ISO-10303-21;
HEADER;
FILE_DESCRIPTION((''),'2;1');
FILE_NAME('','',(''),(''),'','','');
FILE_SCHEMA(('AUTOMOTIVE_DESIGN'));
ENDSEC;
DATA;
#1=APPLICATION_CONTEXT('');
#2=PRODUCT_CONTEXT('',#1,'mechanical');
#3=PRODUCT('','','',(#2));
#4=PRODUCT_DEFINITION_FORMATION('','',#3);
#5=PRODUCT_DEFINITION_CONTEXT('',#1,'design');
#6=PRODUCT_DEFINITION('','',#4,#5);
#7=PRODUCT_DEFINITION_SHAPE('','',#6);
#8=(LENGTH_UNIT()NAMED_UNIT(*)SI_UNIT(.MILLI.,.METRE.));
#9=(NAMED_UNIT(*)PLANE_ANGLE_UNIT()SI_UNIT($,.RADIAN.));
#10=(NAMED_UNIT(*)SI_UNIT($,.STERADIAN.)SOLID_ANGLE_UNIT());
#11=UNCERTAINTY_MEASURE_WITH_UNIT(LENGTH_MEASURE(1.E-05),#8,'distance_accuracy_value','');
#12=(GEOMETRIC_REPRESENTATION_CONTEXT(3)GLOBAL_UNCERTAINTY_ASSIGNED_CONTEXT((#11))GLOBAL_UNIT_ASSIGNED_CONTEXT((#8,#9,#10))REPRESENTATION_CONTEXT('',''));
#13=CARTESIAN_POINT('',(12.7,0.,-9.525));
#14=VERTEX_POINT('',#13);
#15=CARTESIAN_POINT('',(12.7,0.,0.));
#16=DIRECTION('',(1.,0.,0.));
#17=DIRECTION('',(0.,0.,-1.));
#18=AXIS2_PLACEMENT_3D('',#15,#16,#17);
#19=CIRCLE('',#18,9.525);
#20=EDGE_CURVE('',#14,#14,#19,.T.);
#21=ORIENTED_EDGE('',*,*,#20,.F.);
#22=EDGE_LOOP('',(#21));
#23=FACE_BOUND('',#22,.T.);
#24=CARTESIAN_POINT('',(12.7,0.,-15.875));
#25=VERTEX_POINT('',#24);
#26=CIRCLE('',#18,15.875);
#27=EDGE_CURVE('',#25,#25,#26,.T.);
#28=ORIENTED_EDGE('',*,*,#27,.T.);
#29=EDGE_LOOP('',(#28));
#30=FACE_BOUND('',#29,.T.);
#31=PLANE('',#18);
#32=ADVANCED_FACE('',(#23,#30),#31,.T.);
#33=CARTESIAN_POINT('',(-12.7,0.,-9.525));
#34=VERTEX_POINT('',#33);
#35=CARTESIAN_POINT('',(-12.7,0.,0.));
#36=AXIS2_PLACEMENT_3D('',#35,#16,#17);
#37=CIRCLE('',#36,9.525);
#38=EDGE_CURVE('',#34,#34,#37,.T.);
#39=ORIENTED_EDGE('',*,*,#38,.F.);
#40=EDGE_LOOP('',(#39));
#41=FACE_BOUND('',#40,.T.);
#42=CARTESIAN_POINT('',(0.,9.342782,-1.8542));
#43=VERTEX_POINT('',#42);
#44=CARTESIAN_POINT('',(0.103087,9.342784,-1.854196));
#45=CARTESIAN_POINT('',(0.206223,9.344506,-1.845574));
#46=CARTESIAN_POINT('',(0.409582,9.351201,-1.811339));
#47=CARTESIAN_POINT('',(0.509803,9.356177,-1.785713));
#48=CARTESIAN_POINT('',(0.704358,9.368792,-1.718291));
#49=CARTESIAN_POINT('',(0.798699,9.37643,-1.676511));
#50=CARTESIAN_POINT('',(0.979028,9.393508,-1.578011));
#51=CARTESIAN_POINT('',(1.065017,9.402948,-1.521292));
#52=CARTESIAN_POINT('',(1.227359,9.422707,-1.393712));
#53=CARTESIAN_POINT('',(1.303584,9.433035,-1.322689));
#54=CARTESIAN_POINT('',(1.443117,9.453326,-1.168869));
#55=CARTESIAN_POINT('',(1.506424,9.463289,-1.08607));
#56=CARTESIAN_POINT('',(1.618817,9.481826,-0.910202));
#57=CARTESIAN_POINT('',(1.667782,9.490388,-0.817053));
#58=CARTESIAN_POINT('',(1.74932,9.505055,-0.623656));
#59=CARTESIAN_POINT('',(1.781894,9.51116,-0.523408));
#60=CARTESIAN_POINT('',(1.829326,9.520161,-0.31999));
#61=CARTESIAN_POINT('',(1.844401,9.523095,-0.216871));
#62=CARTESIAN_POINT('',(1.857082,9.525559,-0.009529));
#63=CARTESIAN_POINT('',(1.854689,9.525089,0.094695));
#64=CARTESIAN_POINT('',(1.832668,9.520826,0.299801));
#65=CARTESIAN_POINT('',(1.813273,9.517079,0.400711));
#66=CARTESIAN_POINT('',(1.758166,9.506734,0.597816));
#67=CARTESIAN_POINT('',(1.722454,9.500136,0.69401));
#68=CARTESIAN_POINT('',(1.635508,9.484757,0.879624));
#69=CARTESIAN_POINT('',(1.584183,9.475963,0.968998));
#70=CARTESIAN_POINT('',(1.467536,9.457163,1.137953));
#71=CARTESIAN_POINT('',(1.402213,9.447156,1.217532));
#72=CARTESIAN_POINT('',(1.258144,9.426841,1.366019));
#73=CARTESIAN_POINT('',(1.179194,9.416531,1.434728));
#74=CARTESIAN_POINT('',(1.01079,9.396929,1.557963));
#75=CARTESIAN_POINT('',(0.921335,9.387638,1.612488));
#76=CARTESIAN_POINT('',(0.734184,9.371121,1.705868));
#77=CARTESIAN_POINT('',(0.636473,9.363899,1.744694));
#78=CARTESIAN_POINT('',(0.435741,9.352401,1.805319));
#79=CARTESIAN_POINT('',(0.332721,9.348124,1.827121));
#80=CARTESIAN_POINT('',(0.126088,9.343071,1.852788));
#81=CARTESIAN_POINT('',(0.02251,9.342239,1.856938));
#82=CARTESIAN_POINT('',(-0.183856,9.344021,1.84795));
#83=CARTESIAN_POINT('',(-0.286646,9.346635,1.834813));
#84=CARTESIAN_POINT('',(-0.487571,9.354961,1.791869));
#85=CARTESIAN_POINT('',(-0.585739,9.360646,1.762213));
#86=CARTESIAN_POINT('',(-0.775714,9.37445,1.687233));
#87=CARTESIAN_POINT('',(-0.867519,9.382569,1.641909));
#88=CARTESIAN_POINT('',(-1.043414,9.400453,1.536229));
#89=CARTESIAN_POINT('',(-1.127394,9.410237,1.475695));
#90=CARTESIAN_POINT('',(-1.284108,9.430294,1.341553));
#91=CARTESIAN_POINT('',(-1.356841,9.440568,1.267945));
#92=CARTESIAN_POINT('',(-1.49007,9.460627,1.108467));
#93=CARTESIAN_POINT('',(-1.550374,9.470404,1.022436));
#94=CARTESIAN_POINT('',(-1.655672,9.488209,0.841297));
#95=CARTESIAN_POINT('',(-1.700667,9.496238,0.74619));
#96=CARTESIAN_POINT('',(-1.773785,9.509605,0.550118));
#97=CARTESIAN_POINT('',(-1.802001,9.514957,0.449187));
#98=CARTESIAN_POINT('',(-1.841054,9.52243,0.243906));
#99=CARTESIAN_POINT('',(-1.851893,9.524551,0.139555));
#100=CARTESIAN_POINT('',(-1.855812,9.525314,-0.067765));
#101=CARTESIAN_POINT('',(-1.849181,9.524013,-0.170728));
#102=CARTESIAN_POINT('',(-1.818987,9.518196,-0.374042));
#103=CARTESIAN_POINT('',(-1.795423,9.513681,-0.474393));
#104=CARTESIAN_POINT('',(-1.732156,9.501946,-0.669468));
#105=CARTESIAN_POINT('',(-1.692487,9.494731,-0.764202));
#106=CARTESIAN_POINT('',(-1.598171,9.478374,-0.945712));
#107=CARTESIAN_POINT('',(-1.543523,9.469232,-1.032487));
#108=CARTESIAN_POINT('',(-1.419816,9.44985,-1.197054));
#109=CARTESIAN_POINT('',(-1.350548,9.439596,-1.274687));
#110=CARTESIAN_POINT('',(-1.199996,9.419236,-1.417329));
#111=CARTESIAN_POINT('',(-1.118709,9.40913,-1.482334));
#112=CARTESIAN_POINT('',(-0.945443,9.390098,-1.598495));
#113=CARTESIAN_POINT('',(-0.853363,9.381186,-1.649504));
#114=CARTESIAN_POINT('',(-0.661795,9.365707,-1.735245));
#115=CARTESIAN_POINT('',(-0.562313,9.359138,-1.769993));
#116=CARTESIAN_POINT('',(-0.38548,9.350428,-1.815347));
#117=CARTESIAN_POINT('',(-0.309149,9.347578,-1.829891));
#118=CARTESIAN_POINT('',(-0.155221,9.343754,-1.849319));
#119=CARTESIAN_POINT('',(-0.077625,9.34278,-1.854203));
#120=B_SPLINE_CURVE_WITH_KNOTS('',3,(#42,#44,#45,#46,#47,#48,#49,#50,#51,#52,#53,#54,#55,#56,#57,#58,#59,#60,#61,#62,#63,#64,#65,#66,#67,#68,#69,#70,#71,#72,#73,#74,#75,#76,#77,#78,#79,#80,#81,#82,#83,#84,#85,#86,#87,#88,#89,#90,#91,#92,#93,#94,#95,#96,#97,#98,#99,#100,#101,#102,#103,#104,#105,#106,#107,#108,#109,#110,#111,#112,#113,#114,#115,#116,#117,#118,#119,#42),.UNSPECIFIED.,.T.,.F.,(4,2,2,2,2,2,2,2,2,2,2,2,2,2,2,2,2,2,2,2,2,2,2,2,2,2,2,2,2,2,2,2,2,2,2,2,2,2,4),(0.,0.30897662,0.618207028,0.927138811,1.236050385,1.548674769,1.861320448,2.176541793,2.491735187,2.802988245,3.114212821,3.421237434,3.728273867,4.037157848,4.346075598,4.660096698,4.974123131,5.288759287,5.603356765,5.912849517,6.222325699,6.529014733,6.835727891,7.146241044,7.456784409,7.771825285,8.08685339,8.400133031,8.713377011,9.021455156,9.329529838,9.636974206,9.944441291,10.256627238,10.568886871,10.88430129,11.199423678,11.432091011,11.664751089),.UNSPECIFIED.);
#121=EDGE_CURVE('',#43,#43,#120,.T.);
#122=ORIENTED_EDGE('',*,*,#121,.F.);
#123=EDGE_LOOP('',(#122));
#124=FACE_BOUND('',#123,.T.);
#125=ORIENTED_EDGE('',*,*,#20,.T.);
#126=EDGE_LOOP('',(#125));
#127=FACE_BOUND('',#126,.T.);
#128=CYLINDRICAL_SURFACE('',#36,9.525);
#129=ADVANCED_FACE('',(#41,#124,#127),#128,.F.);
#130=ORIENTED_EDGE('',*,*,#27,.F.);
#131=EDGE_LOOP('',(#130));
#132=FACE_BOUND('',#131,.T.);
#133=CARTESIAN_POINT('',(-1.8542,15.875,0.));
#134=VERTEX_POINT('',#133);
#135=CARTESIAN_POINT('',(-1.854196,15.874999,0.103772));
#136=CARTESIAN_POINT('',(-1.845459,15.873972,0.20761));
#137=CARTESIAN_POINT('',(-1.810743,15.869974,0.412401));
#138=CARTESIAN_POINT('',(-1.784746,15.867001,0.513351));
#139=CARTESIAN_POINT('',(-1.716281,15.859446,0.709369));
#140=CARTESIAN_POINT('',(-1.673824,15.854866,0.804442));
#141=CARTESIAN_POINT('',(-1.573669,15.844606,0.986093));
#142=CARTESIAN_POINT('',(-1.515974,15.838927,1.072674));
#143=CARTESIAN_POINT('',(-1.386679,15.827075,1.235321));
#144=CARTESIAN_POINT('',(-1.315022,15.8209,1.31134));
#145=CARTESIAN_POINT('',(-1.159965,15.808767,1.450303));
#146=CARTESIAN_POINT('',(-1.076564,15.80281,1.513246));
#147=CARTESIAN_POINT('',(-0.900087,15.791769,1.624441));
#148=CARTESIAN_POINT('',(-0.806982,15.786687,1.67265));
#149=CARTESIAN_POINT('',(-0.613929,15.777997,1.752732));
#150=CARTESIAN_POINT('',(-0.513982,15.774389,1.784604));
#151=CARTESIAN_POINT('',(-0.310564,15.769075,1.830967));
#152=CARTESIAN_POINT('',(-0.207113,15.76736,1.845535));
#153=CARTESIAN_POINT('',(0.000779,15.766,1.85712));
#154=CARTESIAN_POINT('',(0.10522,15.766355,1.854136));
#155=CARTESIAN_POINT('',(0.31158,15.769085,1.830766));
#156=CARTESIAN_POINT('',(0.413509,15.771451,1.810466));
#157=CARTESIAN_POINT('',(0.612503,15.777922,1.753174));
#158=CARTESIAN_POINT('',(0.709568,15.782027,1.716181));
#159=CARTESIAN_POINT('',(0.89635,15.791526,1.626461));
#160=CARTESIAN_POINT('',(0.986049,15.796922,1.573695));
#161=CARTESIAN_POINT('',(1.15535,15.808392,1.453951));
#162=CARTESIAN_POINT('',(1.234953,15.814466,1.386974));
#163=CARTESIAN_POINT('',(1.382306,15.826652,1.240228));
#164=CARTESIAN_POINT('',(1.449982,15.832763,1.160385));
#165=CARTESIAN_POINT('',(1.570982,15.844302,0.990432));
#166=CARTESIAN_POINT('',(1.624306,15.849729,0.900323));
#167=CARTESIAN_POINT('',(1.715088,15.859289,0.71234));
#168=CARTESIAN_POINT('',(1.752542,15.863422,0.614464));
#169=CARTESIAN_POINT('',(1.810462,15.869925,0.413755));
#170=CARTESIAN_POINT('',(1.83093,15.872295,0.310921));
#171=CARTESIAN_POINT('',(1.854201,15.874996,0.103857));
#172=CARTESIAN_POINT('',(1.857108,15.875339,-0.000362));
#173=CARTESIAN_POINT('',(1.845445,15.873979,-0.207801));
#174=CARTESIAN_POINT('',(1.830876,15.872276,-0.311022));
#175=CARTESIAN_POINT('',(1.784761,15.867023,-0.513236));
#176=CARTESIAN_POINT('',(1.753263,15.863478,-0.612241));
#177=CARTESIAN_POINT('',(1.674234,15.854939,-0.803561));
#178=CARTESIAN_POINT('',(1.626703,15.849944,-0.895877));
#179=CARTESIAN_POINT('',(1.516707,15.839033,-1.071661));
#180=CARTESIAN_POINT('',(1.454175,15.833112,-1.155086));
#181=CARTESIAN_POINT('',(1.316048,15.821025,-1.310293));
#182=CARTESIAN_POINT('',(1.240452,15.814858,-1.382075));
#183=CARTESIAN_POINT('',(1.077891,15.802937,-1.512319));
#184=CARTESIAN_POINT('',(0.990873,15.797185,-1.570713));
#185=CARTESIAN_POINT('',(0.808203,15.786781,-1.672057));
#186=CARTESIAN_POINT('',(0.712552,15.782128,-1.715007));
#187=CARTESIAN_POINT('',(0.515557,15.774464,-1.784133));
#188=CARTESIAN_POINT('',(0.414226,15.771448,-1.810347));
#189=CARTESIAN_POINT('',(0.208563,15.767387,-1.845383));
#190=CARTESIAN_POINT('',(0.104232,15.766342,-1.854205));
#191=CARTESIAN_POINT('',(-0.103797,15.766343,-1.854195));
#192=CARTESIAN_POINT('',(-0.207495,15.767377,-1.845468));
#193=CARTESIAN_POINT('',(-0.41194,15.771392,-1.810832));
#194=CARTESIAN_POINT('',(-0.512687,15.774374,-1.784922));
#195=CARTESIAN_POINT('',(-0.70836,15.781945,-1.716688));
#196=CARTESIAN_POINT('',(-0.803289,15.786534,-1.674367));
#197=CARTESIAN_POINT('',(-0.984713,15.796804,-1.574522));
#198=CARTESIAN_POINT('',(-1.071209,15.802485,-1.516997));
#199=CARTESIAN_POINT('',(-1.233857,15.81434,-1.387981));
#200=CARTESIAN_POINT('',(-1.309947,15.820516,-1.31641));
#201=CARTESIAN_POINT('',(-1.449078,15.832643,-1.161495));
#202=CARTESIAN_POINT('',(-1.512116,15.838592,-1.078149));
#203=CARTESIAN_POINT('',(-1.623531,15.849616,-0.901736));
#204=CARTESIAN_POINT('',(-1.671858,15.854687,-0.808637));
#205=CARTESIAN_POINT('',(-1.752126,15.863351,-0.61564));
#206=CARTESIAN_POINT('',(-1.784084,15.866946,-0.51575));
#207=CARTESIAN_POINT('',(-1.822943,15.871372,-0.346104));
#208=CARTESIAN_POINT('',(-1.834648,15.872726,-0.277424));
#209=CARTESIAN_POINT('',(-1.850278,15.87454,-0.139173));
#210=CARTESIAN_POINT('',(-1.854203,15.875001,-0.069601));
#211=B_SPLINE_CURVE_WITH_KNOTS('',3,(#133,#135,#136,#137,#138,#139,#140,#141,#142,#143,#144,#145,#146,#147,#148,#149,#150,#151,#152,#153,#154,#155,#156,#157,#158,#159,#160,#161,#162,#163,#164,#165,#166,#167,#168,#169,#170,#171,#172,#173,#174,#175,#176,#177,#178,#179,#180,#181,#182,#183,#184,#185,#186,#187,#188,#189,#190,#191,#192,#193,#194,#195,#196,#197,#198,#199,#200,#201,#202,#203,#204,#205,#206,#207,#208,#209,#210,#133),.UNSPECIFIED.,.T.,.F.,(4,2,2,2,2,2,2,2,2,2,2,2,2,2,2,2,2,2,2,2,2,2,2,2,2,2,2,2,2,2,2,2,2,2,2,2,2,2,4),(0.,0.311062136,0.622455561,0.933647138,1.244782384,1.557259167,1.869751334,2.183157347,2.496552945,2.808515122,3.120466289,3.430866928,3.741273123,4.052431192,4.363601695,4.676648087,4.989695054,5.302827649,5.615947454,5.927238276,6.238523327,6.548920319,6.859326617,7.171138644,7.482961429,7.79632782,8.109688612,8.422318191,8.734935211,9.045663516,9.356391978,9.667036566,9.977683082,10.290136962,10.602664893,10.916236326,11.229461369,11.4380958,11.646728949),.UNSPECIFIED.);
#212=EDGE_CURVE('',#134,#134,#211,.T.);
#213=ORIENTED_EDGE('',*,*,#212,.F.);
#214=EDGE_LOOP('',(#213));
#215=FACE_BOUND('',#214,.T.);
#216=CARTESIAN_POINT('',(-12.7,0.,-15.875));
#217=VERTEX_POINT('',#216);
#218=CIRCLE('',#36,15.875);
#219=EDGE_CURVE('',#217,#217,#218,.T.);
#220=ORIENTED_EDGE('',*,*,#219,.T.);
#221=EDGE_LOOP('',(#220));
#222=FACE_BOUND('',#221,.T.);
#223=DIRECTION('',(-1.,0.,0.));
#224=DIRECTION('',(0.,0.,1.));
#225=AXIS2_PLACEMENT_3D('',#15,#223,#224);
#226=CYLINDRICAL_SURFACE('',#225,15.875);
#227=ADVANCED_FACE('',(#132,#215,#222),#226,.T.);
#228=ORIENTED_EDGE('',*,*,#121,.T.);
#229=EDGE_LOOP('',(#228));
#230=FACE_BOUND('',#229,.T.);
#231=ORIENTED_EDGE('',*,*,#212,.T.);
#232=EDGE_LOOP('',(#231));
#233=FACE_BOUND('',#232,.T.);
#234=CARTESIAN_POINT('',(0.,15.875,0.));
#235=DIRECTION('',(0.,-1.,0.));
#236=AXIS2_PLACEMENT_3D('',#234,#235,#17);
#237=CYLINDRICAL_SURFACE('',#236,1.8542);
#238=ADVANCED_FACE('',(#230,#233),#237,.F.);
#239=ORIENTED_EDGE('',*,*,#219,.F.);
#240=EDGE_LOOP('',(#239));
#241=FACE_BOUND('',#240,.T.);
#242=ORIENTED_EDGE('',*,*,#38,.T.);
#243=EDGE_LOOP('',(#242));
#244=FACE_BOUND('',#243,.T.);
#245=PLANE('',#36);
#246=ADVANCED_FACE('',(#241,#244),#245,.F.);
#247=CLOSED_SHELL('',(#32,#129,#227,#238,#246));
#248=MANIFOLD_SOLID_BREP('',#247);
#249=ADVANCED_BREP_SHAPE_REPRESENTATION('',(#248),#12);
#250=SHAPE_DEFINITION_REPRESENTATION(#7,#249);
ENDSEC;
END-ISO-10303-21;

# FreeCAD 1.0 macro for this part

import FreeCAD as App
import Part
import Sketcher
from FreeCAD import Vector
Q = App.Units.Quantity

doc = App.newDocument("Part")
body = doc.addObject("PartDesign::Body", "Body")

# Sketch on YZ plane
sketch1 = body.newObject("Sketcher::SketchObject", "Sketch")
sketch1.AttachmentSupport = (doc.getObject("YZ_Plane"), [""])
sketch1.MapMode = "FlatFace"
sketch1.addGeometry(Part.Circle(Vector(0, 0, 0), Vector(0, 0, 1), 16), False)
sketch1.addConstraint(Sketcher.Constraint("Coincident", 0, 3, -1, 1))
sketch1.addConstraint(Sketcher.Constraint("Diameter", 0, Q("1.25 in")))
pad1 = body.newObject("PartDesign::Pad", "Pad")
pad1.Profile = sketch1
pad1.Length = Q("1 in")
pad1.Midplane = True

# Sketch on YZ plane
sketch2 = body.newObject("Sketcher::SketchObject", "Sketch001")
sketch2.AttachmentSupport = (doc.getObject("YZ_Plane"), [""])
sketch2.MapMode = "FlatFace"
sketch2.AttachmentOffset = App.Placement(Vector(0, 0, 0.5 * 25.4), App.Rotation())
sketch2.addGeometry(Part.Circle(Vector(0, 0, 0), Vector(0, 0, 1), 10), False)
sketch2.addConstraint(Sketcher.Constraint("Coincident", 0, 3, -1, 1))
sketch2.addConstraint(Sketcher.Constraint("Diameter", 0, Q("0.75 in")))
pocket1 = body.newObject("PartDesign::Pocket", "Pocket")
pocket1.Profile = sketch2
pocket1.Type = "ThroughAll"

# Sketch on XZ plane
sketch3 = body.newObject("Sketcher::SketchObject", "Sketch002")
sketch3.AttachmentSupport = (doc.getObject("XZ_Plane"), [""])
sketch3.MapMode = "FlatFace"
sketch3.addGeometry(Part.Circle(Vector(0, 0, 0), Vector(0, 0, 1), 1.9), False)
sketch3.addConstraint(Sketcher.Constraint("Coincident", 0, 3, -1, 1))
sketch3.addConstraint(Sketcher.Constraint("Diameter", 0, Q("0.146 in")))
pocket2 = body.newObject("PartDesign::Pocket", "Pocket001")
pocket2.Profile = sketch3
pocket2.Type = "ThroughAll"

doc.recompute()
